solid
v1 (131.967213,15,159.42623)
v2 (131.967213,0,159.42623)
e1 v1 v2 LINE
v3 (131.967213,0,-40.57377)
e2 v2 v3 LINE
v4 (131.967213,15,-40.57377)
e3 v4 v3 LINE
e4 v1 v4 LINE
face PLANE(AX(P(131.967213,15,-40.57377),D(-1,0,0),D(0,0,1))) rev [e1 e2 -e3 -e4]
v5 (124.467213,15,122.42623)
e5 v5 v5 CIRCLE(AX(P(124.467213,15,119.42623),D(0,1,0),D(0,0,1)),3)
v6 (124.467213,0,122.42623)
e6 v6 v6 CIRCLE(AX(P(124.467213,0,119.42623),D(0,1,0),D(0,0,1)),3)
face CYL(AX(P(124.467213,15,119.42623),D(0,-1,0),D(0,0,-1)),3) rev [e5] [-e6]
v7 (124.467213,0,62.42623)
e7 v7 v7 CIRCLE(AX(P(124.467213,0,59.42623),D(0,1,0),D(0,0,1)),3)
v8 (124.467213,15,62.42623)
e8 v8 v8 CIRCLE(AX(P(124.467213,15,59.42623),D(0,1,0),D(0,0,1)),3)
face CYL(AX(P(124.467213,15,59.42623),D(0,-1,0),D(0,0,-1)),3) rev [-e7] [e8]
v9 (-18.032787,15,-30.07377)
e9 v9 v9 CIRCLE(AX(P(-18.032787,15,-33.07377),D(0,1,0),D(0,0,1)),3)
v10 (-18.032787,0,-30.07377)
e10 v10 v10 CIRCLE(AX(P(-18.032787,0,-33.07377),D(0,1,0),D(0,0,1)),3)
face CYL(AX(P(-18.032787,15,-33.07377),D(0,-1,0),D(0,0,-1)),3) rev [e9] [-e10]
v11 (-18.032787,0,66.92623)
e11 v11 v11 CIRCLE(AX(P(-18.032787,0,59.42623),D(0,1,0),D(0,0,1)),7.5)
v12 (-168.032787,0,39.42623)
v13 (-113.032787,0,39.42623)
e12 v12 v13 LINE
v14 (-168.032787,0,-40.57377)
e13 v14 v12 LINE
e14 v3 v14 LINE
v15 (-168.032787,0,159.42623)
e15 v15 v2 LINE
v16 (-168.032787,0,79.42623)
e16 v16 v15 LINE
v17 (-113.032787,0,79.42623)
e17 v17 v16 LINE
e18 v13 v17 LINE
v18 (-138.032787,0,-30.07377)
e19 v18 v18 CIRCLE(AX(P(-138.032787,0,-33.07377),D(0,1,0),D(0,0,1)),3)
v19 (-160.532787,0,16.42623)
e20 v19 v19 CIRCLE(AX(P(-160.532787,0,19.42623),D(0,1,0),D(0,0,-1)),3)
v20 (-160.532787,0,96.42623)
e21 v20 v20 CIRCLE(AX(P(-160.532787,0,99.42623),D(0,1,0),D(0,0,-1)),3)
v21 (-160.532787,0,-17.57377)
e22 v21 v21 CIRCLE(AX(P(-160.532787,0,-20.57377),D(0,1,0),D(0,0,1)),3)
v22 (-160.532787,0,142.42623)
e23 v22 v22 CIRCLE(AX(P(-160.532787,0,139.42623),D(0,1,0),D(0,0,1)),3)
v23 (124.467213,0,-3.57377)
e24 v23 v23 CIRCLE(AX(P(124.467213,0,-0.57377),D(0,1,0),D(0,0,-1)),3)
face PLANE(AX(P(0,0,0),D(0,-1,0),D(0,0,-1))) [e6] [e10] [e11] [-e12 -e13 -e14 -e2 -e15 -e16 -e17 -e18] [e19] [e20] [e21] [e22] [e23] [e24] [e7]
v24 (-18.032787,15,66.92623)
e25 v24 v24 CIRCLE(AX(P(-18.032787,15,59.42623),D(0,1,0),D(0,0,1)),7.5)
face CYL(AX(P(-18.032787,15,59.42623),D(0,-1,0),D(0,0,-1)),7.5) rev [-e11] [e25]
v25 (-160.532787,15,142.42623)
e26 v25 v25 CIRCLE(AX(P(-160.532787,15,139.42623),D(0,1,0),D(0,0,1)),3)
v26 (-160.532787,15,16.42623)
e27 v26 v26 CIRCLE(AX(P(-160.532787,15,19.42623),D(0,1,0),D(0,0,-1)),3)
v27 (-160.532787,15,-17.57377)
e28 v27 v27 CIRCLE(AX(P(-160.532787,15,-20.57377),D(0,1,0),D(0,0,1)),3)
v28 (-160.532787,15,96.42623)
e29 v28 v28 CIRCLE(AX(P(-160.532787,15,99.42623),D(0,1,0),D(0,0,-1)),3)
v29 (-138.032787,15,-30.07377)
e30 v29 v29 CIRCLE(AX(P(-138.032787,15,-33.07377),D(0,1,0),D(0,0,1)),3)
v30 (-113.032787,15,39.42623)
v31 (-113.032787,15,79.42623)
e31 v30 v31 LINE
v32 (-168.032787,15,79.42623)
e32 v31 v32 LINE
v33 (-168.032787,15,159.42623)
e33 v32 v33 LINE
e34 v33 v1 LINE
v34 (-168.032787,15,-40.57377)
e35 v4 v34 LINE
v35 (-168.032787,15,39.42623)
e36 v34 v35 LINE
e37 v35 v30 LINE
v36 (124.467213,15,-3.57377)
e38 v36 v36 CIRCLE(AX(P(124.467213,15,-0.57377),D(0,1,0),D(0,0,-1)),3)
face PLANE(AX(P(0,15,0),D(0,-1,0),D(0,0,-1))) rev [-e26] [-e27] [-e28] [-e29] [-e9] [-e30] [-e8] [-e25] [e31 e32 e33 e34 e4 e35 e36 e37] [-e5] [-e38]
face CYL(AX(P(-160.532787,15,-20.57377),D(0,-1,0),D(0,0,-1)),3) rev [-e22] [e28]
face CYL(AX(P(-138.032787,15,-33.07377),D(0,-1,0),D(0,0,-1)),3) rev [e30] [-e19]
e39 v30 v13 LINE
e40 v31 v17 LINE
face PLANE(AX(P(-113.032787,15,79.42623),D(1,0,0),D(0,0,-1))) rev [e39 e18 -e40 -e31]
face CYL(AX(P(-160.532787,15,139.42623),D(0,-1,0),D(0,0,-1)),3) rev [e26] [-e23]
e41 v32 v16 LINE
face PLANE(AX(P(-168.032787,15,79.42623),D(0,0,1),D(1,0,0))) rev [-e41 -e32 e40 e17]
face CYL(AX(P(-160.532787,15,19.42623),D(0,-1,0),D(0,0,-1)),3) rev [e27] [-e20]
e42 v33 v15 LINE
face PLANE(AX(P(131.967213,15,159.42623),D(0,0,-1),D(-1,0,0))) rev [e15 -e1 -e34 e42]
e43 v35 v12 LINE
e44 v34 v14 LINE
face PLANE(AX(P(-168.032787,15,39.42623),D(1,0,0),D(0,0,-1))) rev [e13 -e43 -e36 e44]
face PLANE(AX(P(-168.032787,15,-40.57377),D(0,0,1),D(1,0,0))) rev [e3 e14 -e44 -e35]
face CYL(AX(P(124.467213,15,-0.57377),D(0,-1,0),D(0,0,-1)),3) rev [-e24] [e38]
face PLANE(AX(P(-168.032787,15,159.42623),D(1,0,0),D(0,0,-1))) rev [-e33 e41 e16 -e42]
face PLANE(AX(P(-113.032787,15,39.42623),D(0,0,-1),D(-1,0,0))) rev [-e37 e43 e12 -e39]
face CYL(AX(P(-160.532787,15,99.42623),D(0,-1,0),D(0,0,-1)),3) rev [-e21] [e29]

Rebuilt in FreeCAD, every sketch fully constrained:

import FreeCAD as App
import Part
import Sketcher
from FreeCAD import Vector
Q = App.Units.Quantity

doc = App.newDocument("Part")
params = doc.addObject("Spreadsheet::Sheet", "Params")
for row, (alias, value) in enumerate([
    ("sketch1_diameter", "6 mm"),
    ("sketch1_diameter2", "15 mm"),
    ("sketch1_width", "300 mm"),
    ("sketch1_width2", "55 mm"),
    ("sketch1_height", "80 mm"),
    ("pad1_length", "15 mm"),
], start=1):
    params.set(f"A{row}", alias)
    params.set(f"B{row}", "=" + value)
    params.setAlias(f"B{row}", alias)

body = doc.addObject("PartDesign::Body", "Body")

sketch1 = body.newObject("Sketcher::SketchObject", "Sketch")
sketch1.AttachmentSupport = (doc.getObject("XZ_Plane"), [""])
sketch1.MapMode = "FlatFace"
sketch1.addGeometry([
    Part.LineSegment(Vector(131.967213, -40.57377, 0), Vector(-168.032787, -40.57377, 0)),
    Part.LineSegment(Vector(-168.032787, -40.57377, 0), Vector(-168.032787, 39.42623, 0)),
    Part.LineSegment(Vector(-168.032787, 39.42623, 0), Vector(-113.032787, 39.42623, 0)),
    Part.LineSegment(Vector(-113.032787, 39.42623, 0), Vector(-113.032787, 79.42623, 0)),
    Part.LineSegment(Vector(-113.032787, 79.42623, 0), Vector(-168.032787, 79.42623, 0)),
    Part.LineSegment(Vector(-168.032787, 79.42623, 0), Vector(-168.032787, 159.42623, 0)),
    Part.LineSegment(Vector(-168.032787, 159.42623, 0), Vector(131.967213, 159.42623, 0)),
    Part.LineSegment(Vector(131.967213, 159.42623, 0), Vector(131.967213, -40.57377, 0)),
    Part.Circle(Vector(124.467213, 119.42623, 0), Vector(0, 0, 1), 3),
    Part.Circle(Vector(124.467213, 59.42623, 0), Vector(0, 0, 1), 3),
    Part.Circle(Vector(-160.532787, 139.42623, 0), Vector(0, 0, 1), 3),
    Part.Circle(Vector(-160.532787, 99.42623, 0), Vector(0, 0, 1), 3),
    Part.Circle(Vector(-18.032787, 59.42623, 0), Vector(0, 0, 1), 7.5),
    Part.Circle(Vector(124.467213, -0.57377, 0), Vector(0, 0, 1), 3),
    Part.Circle(Vector(-160.532787, 19.42623, 0), Vector(0, 0, 1), 3),
    Part.Circle(Vector(-18.032787, -33.07377, 0), Vector(0, 0, 1), 3),
    Part.Circle(Vector(-160.532787, -20.57377, 0), Vector(0, 0, 1), 3),
    Part.Circle(Vector(-138.032787, -33.07377, 0), Vector(0, 0, 1), 3),
], False)
sketch1.addConstraint([
    Sketcher.Constraint("Coincident", 0, 2, 1, 1),
    Sketcher.Constraint("Coincident", 1, 2, 2, 1),
    Sketcher.Constraint("Coincident", 2, 2, 3, 1),
    Sketcher.Constraint("Coincident", 3, 2, 4, 1),
    Sketcher.Constraint("Coincident", 4, 2, 5, 1),
    Sketcher.Constraint("Coincident", 5, 2, 6, 1),
    Sketcher.Constraint("Coincident", 6, 2, 7, 1),
    Sketcher.Constraint("Coincident", 7, 2, 0, 1),
    Sketcher.Constraint("Horizontal", 0),
    Sketcher.Constraint("Vertical", 1),
    Sketcher.Constraint("Horizontal", 2),
    Sketcher.Constraint("Vertical", 3),
    Sketcher.Constraint("Horizontal", 4),
    Sketcher.Constraint("Vertical", 5),
    Sketcher.Constraint("Horizontal", 6),
    Sketcher.Constraint("Vertical", 7),
    Sketcher.Constraint("Equal", 8, 9),
    Sketcher.Constraint("Equal", 9, 10),
    Sketcher.Constraint("Equal", 10, 11),
    Sketcher.Constraint("Equal", 11, 13),
    Sketcher.Constraint("Equal", 13, 14),
    Sketcher.Constraint("Equal", 14, 15),
    Sketcher.Constraint("Equal", 15, 16),
    Sketcher.Constraint("Equal", 16, 17),
    Sketcher.Constraint("Horizontal", 9, 3, 12, 3),
    Sketcher.Constraint("Horizontal", 15, 3, 17, 3),
    Sketcher.Constraint("Vertical", 8, 3, 9, 3),
    Sketcher.Constraint("Vertical", 10, 3, 11, 3),
    Sketcher.Constraint("Vertical", 9, 3, 13, 3),
    Sketcher.Constraint("Vertical", 11, 3, 14, 3),
    Sketcher.Constraint("Vertical", 12, 3, 15, 3),
    Sketcher.Constraint("Vertical", 14, 3, 16, 3),
    Sketcher.Constraint("Vertical", 1, 2, 4, 2),
    Sketcher.Constraint("Equal", 1, 5),
    Sketcher.Constraint("Diameter", 8, Q("6 mm")),
    Sketcher.Constraint("Diameter", 12, Q("15 mm")),
    Sketcher.Constraint("DistanceX", 0, 2, 0, 1, Q("300 mm")),
    Sketcher.Constraint("DistanceX", 2, 1, 2, 2, Q("55 mm")),
    Sketcher.Constraint("DistanceY", 1, 1, 1, 2, Q("80 mm")),
    Sketcher.Constraint("DistanceY", 3, 1, 3, 2, Q("40 mm")),
    Sketcher.Constraint("DistanceY", 9, 3, 8, 3, Q("60 mm")),
    Sketcher.Constraint("DistanceX", 10, 3, 8, 3, Q("285 mm")),
    Sketcher.Constraint("DistanceY", 8, 3, 10, 3, Q("20 mm")),
    Sketcher.Constraint("DistanceY", 11, 3, 10, 3, Q("40 mm")),
    Sketcher.Constraint("DistanceY", 13, 3, 9, 3, Q("60 mm")),
    Sketcher.Constraint("DistanceY", 14, 3, 11, 3, Q("80 mm")),
    Sketcher.Constraint("DistanceY", 16, 3, 14, 3, Q("40 mm")),
    Sketcher.Constraint("DistanceX", 17, 3, 15, 3, Q("120 mm")),
    Sketcher.Constraint("DistanceY", 0, 2, 16, 3, Q("20 mm")),
    Sketcher.Constraint("DistanceX", 0, 2, 17, 3, Q("30 mm")),
    Sketcher.Constraint("DistanceX", 12, 3, 9, 3, Q("142.5 mm")),
    Sketcher.Constraint("DistanceY", 15, 3, 12, 3, Q("92.5 mm")),
    Sketcher.Constraint("DistanceY", -1, 1, 8, 3, Q("119.42623 mm")),
    Sketcher.Constraint("DistanceX", -1, 1, 8, 3, Q("124.467213 mm")),
])
sketch1.setExpression("Constraints[34]", "Params.sketch1_diameter")
sketch1.setExpression("Constraints[35]", "Params.sketch1_diameter2")
sketch1.setExpression("Constraints[36]", "Params.sketch1_width")
sketch1.setExpression("Constraints[37]", "Params.sketch1_width2")
sketch1.setExpression("Constraints[38]", "Params.sketch1_height")
pad1 = body.newObject("PartDesign::Pad", "Pad")
pad1.Profile = sketch1
pad1.setExpression("Length", "Params.pad1_length")
pad1.Reversed = True

doc.recompute()
